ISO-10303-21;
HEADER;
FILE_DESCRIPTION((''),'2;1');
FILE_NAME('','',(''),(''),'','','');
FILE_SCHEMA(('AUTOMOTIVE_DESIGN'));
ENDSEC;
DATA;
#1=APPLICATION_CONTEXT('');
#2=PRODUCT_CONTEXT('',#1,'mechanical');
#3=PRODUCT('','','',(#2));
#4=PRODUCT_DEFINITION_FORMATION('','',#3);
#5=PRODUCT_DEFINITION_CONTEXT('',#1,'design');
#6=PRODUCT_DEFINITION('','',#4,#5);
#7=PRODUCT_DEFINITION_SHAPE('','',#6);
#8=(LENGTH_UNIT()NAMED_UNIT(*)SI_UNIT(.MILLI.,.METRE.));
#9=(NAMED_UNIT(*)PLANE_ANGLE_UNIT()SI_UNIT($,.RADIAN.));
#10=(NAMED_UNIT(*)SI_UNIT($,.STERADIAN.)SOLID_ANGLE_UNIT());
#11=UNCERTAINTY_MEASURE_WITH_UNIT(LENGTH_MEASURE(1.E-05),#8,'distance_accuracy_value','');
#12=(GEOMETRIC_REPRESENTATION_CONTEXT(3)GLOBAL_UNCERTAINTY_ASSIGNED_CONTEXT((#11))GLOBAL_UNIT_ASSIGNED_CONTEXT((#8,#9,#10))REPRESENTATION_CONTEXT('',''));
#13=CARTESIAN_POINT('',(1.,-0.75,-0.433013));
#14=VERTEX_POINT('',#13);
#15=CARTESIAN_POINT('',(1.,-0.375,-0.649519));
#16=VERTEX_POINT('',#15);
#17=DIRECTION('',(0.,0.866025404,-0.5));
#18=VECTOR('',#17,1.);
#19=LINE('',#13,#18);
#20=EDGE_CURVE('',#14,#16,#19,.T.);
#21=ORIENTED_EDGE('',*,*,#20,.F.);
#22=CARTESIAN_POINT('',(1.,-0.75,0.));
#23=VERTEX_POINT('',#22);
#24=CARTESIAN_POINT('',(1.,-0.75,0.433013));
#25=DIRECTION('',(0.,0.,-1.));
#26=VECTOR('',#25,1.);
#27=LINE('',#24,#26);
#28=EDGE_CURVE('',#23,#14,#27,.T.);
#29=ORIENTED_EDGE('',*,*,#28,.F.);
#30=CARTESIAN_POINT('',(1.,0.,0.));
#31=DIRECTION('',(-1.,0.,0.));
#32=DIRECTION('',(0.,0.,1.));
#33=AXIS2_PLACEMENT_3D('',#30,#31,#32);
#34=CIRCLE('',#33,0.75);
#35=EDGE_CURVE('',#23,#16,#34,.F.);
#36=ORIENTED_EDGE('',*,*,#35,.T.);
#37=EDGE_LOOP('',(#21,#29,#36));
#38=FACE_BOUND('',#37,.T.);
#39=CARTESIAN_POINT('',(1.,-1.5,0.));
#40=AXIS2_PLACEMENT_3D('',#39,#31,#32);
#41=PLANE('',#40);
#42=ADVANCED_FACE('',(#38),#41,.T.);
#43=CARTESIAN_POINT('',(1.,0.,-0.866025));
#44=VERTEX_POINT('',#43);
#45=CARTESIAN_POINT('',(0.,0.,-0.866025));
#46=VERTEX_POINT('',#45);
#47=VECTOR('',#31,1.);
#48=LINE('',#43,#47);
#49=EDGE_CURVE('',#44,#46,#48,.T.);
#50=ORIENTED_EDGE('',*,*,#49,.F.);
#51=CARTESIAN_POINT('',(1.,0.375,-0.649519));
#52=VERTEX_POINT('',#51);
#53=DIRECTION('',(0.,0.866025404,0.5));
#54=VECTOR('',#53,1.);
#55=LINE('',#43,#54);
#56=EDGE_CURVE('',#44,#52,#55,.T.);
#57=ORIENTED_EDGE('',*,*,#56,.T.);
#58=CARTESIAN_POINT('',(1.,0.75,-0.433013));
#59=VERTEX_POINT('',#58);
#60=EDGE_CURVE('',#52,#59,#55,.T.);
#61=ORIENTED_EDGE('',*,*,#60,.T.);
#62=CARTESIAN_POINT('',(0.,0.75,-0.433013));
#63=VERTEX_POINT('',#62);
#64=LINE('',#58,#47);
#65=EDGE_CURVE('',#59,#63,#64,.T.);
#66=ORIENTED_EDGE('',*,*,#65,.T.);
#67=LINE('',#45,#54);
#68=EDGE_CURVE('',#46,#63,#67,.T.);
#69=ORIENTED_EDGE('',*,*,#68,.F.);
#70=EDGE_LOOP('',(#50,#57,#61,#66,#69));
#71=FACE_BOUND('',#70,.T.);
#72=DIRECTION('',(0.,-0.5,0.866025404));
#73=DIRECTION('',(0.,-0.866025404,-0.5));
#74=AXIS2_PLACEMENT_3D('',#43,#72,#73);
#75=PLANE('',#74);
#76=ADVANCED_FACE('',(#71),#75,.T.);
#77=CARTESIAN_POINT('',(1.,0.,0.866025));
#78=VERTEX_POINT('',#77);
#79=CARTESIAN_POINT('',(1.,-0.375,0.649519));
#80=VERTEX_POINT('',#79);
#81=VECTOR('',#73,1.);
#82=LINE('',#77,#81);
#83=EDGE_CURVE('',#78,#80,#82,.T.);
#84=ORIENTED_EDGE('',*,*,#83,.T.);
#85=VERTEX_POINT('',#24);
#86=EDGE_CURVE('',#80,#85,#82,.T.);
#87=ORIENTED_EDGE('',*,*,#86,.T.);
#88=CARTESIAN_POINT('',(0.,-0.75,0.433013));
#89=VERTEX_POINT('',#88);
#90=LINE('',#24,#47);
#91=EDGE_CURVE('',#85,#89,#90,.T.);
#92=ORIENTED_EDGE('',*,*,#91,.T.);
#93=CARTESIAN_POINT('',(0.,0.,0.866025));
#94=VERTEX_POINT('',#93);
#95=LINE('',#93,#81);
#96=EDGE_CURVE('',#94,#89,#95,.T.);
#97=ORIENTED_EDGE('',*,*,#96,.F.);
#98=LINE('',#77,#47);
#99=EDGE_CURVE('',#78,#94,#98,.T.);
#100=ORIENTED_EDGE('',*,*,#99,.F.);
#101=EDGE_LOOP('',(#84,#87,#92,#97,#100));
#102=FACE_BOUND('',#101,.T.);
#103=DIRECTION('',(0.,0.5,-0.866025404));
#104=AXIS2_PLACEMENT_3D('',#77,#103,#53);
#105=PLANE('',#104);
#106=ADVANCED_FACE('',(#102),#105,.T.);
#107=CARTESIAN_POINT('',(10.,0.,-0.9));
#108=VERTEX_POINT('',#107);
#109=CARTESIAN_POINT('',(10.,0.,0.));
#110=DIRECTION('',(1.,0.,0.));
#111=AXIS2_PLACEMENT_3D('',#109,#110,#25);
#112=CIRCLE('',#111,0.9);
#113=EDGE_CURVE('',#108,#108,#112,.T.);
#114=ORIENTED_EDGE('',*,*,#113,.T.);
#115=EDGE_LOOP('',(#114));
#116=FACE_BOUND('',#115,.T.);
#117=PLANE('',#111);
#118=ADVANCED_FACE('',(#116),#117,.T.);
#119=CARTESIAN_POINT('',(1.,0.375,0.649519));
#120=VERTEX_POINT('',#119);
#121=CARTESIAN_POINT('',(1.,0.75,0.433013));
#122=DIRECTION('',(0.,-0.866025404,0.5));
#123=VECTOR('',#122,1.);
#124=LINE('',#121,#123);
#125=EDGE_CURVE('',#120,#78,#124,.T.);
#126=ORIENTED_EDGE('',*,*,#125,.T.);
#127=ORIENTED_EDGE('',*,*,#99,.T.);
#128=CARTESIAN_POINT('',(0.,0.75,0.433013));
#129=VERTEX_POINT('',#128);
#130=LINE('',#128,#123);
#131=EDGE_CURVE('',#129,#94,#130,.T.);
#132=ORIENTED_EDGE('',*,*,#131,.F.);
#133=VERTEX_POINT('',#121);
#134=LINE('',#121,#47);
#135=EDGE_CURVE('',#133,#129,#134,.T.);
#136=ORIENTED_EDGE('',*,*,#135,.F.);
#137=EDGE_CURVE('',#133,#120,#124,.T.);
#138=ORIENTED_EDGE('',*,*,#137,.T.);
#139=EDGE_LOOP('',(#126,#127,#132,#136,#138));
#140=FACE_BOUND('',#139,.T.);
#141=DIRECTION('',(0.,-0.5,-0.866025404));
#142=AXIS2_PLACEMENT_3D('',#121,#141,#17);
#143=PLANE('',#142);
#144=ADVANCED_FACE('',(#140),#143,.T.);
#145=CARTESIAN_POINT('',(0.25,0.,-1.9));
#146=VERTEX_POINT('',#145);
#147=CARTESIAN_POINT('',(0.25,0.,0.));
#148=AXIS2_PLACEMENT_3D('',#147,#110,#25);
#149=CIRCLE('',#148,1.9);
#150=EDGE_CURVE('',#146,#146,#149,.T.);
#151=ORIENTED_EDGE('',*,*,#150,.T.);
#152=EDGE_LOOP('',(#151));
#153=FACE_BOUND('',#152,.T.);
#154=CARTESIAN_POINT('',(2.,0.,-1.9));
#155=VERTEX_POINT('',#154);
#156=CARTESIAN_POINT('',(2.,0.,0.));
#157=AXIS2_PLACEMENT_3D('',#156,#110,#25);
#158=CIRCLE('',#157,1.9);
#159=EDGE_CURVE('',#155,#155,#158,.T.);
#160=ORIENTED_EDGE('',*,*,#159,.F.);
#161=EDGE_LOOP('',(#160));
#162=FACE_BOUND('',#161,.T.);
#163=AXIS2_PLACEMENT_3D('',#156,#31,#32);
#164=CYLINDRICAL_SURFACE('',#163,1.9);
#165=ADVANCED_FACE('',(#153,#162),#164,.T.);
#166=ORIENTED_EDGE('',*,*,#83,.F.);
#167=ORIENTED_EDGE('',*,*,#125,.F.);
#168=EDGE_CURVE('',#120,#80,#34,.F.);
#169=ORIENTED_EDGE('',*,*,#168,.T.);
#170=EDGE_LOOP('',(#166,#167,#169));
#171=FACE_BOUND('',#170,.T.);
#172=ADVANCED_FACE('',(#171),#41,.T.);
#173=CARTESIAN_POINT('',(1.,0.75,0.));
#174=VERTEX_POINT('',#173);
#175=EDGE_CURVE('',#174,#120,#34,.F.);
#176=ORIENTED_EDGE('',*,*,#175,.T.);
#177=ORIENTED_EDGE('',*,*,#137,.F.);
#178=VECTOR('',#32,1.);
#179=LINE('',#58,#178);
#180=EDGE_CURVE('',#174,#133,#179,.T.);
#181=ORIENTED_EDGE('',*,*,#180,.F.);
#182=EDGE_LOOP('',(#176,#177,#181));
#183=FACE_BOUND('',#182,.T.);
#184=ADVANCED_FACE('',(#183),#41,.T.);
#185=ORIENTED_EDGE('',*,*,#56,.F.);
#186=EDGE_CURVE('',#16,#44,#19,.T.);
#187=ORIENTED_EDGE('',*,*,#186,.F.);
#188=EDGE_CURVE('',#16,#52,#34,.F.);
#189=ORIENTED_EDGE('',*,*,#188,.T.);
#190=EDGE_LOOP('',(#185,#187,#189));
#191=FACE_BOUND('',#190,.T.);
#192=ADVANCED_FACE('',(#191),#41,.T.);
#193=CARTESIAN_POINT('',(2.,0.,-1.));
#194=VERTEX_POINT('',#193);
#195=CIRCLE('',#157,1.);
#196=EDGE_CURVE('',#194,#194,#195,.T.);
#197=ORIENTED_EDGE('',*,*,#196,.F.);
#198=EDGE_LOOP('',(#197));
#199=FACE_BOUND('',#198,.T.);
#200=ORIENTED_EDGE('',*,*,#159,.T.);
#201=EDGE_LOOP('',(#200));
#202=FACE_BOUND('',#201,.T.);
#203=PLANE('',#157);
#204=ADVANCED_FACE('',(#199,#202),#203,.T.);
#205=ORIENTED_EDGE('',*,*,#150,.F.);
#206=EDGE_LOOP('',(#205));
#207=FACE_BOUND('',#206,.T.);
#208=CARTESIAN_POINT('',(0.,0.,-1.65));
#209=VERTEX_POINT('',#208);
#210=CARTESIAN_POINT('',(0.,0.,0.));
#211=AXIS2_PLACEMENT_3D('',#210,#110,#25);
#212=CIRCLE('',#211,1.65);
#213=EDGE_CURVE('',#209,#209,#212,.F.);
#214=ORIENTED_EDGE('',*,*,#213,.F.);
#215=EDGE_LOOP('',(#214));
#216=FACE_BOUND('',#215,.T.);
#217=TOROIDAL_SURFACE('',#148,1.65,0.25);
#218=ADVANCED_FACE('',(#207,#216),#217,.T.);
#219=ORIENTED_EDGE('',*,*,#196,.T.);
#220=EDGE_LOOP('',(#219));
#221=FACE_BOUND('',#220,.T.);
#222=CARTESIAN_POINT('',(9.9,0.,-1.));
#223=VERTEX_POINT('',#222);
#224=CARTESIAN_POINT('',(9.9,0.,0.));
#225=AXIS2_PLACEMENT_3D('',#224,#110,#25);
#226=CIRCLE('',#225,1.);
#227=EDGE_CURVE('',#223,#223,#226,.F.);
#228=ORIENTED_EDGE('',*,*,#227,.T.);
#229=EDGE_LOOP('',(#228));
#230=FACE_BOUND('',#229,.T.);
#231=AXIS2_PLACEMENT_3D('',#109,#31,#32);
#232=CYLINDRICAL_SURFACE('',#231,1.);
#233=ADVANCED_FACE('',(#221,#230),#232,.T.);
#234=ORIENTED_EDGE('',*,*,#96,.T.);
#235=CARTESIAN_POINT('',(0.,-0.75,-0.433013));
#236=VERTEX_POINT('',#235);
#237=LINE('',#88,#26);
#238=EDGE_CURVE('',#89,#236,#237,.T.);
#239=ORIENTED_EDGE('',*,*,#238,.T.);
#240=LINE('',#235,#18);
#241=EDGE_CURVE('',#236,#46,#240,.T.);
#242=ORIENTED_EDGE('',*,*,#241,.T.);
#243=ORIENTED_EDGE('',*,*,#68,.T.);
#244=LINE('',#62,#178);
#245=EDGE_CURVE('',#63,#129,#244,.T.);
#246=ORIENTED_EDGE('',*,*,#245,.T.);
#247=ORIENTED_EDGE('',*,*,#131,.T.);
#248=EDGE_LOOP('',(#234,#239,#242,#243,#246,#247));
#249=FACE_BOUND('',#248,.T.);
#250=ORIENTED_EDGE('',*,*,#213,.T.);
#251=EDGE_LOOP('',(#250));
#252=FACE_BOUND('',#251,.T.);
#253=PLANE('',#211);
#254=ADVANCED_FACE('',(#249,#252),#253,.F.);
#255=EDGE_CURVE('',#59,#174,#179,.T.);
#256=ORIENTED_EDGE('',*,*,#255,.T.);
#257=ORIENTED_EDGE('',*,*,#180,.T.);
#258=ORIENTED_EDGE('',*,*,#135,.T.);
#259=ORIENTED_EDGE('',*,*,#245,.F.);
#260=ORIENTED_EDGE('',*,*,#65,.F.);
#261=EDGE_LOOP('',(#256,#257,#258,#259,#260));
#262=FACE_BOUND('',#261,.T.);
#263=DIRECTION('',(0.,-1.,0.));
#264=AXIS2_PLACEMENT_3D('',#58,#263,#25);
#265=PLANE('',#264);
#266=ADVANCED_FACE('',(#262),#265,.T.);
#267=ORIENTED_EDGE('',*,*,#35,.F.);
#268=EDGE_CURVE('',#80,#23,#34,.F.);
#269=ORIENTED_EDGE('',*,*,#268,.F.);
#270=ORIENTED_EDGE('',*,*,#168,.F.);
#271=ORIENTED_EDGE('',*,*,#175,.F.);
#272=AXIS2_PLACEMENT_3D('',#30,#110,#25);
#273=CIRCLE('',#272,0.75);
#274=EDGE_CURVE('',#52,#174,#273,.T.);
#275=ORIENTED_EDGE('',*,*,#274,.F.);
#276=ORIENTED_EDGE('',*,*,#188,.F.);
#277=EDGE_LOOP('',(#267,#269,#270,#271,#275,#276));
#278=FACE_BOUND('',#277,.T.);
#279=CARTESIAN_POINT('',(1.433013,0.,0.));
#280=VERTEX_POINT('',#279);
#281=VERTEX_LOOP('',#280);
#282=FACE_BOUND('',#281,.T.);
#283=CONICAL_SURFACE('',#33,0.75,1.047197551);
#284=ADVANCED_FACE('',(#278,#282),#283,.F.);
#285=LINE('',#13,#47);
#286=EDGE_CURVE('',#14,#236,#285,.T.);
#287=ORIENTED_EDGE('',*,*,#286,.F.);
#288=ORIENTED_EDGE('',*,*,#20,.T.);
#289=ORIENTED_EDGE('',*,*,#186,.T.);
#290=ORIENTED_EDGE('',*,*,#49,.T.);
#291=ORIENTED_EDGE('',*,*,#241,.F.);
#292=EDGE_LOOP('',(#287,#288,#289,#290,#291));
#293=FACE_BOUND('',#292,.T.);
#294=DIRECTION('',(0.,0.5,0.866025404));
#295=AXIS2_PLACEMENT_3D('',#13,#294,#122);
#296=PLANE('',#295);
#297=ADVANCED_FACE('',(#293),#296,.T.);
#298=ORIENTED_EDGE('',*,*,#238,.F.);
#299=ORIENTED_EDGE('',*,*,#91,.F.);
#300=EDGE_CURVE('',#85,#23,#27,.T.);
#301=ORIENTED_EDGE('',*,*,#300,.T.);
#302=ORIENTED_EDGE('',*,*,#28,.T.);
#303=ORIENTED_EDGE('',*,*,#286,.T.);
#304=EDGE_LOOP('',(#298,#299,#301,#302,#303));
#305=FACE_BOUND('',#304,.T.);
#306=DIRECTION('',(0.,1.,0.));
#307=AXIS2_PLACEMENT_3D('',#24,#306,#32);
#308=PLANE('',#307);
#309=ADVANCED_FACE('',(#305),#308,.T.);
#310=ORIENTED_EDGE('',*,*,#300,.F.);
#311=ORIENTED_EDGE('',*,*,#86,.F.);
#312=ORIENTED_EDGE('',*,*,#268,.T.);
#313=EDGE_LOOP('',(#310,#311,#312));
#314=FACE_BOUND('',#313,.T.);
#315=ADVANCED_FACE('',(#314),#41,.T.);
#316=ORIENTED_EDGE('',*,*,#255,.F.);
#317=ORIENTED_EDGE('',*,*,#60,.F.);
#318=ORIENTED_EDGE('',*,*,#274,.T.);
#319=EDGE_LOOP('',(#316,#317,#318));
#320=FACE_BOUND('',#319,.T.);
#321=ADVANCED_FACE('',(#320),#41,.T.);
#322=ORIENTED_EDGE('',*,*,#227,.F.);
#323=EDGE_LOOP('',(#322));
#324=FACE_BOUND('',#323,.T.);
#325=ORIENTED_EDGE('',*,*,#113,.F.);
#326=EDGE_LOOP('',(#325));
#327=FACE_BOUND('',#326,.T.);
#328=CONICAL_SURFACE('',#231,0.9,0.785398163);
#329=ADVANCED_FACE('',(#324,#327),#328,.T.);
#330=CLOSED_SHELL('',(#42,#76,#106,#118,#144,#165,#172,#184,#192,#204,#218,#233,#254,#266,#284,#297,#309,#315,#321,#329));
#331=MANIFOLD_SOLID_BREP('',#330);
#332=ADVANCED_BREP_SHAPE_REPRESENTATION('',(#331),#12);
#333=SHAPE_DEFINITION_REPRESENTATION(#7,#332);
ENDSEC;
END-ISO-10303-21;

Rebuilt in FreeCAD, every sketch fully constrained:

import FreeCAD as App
import Part
import Sketcher

V = App.Vector
Q = App.Units.Quantity


def edges_at(feature, points):
    """Names of the edges that pass closest to the given points."""
    edges = feature.Shape.Edges
    near = lambda p: min(range(len(edges)), key=lambda i: edges[i].distToShape(Part.Vertex(*p))[0])
    return sorted({f"Edge{near(p) + 1}" for p in points})


def add_polygon(sketch, points):
    """Adds a closed chain of lines whose ends are joined by coincident constraints."""
    first, n = sketch.GeometryCount, len(points)
    for a, b in zip(points, points[1:] + points[:1]):
        sketch.addGeometry(Part.LineSegment(App.Vector(*a, 0), App.Vector(*b, 0)), False)
    for i in range(n):
        sketch.addConstraint(Sketcher.Constraint("Coincident", first + i, 2, first + (i + 1) % n, 1))

doc = App.newDocument("Part")
body = doc.addObject("PartDesign::Body", "Body")

# Sketch on YZ plane
sketch1 = body.newObject("Sketcher::SketchObject", "Sketch")
sketch1.AttachmentSupport = (doc.getObject("YZ_Plane"), [""])
sketch1.MapMode = "FlatFace"
sketch1.addGeometry(Part.Circle(V(0, 0, 0), V(0, 0, 1), 1.9), False)
sketch1.addConstraint([
    Sketcher.Constraint("Coincident", 0, 3, -1, 1),
    Sketcher.Constraint("Diameter", 0, Q("3.8 mm")),
])
pad1 = body.newObject("PartDesign::Pad", "Pad")
pad1.Profile = sketch1
pad1.Length = 2

# Sketch on YZ plane
sketch2 = body.newObject("Sketcher::SketchObject", "Sketch001")
sketch2.AttachmentSupport = (doc.getObject("YZ_Plane"), [""])
sketch2.MapMode = "FlatFace"
sketch2.AttachmentOffset = App.Placement(V(0, 0, 2), App.Rotation())
sketch2.addGeometry(Part.Circle(V(0, 0, 0), V(0, 0, 1), 1), False)
sketch2.addConstraint([
    Sketcher.Constraint("Coincident", 0, 3, -1, 1),
    Sketcher.Constraint("Diameter", 0, Q("2 mm")),
])
pad2 = body.newObject("PartDesign::Pad", "Pad001")
pad2.Profile = sketch2
pad2.Length = 8

# Sketch on YZ plane
sketch3 = body.newObject("Sketcher::SketchObject", "Sketch002")
sketch3.AttachmentSupport = (doc.getObject("YZ_Plane"), [""])
sketch3.MapMode = "FlatFace"
add_polygon(sketch3, [(0, -0.9), (0.8, -0.4), (0.8, 0.4), (0, 0.9), (-0.8, 0.4), (-0.8, -0.4)])  # lines 0-5
sketch3.addConstraint([
    Sketcher.Constraint("Vertical", 1),
    Sketcher.Constraint("Vertical", 4),
    Sketcher.Constraint("Symmetric", 0, 2, 3, 2, -1, 1),
    Sketcher.Constraint("Symmetric", 2, 2, 5, 2, -1, 1),
    Sketcher.Constraint("PointOnObject", 2, 2, -2),
    Sketcher.Constraint("Parallel", 2, 5),
    Sketcher.Constraint("Horizontal", 1, 2, 3, 2),
    Sketcher.Constraint("Angle", 0, Q("30 deg")),
    Sketcher.Constraint("DistanceX", 3, 2, 1, 2, Q("1.5 mm")),
    Sketcher.Constraint("DistanceY", 1, 1, 1, 2, Q("0.866025 mm")),
])
pocket1 = body.newObject("PartDesign::Pocket", "Pocket")
pocket1.Profile = sketch3
pocket1.Length = 1
pocket1.Reversed = True

# Sketch on XY plane
sketch4 = body.newObject("Sketcher::SketchObject", "Sketch003")
sketch4.AttachmentSupport = (doc.getObject("XY_Plane"), [""])
sketch4.MapMode = "FlatFace"
add_polygon(sketch4, [(1, -0.75), (1.43, 0), (1, 0)])  # lines 0-2
sketch4.addConstraint([
    Sketcher.Constraint("Horizontal", 1),
    Sketcher.Constraint("Vertical", 2),
    Sketcher.Constraint("PointOnObject", 0, 2, -1),
    Sketcher.Constraint("Angle", 0, Q("60 deg")),
    Sketcher.Constraint("DistanceX", -1, 1, 1, 2, Q("1 mm")),
    Sketcher.Constraint("DistanceY", 2, 2, 2, 1, Q("0.75 mm")),
])
groove = body.newObject("PartDesign::Groove", "Groove")
groove.Profile = sketch4
groove.ReferenceAxis = (sketch4, ["H_Axis"])
groove.Angle = 360
doc.recompute()

fillet = body.newObject("PartDesign::Fillet", "Fillet")
fillet.Base = (groove, edges_at(groove, [(0, 0, 1.9)]))
fillet.Radius = 0.25
doc.recompute()

chamfer = body.newObject("PartDesign::Chamfer", "Chamfer")
chamfer.Base = (fillet, edges_at(fillet, [(10, 0, 1)]))
chamfer.Size = 0.1

doc.recompute()
